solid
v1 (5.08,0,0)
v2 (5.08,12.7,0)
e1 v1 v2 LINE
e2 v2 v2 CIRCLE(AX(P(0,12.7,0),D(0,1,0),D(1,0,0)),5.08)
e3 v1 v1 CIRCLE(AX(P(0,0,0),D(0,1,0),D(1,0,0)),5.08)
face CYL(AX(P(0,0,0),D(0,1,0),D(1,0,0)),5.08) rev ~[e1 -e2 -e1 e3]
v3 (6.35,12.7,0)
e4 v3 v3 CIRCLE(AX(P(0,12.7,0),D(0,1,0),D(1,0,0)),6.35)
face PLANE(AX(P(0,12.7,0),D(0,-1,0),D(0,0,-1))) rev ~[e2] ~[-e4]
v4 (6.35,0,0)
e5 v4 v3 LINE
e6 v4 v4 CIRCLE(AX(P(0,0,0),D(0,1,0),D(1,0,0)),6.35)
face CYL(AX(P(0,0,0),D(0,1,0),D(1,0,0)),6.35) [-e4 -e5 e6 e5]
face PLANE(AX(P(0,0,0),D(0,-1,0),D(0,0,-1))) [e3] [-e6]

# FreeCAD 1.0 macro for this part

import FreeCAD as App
import Part
import Sketcher

V = App.Vector
Q = App.Units.Quantity

doc = App.newDocument("Part")
body = doc.addObject("PartDesign::Body", "Body")

sketch1 = body.newObject("Sketcher::SketchObject", "Sketch")
sketch1.AttachmentSupport = (doc.getObject("XZ_Plane"), [""])
sketch1.MapMode = "FlatFace"
sketch1.addGeometry([
    Part.Circle(V(0, 0, 0), V(0, 0, 1), 6.35),
    Part.Circle(V(0, 0, 0), V(0, 0, 1), 5.08),
], False)
sketch1.addConstraint([
    Sketcher.Constraint("Coincident", 0, 3, -1, 1),
    Sketcher.Constraint("Coincident", 1, 3, -1, 1),
    Sketcher.Constraint("Diameter", 0, Q("0.5 in")),
    Sketcher.Constraint("Diameter", 1, Q("0.4 in")),
])

sketch2 = body.newObject("Sketcher::SketchObject", "Sketch001")
sketch2.AttachmentSupport = (doc.getObject("XY_Plane"), [""])
sketch2.MapMode = "FlatFace"
sketch2.addGeometry(Part.LineSegment(V(0, 0, 0), V(0, 12.7, 0)), False)
sketch2.addConstraint([
    Sketcher.Constraint("Vertical", 0),
    Sketcher.Constraint("Coincident", 0, 1, -1, 1),
    Sketcher.Constraint("DistanceY", 0, 1, 0, 2, Q("0.5 in")),
])
doc.recompute()

additivepipe = body.newObject("PartDesign::AdditivePipe", "AdditivePipe")
additivepipe.Profile = sketch1
additivepipe.Spine = (sketch2, ["Edge1"])

doc.recompute()
